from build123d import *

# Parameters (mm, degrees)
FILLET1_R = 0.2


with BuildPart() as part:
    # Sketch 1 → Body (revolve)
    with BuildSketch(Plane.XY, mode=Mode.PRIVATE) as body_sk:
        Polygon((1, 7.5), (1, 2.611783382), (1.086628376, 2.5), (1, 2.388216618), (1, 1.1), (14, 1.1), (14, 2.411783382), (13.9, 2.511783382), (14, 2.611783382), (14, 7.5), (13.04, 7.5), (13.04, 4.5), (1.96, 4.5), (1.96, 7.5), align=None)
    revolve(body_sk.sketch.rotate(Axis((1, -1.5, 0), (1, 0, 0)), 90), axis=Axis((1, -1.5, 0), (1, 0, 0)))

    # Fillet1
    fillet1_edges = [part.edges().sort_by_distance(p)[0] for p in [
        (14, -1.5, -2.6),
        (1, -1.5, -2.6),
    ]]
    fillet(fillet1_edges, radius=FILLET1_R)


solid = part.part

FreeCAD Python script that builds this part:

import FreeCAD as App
import Part
import Sketcher
from FreeCAD import Vector
Q = App.Units.Quantity


def edges_at(feature, points):
    """Names of the edges that pass closest to the given points."""
    edges = feature.Shape.Edges
    near = lambda p: min(range(len(edges)), key=lambda i: edges[i].distToShape(Part.Vertex(*p))[0])
    return sorted({f"Edge{near(p) + 1}" for p in points})


def add_polygon(sketch, points):
    """Adds a closed chain of lines whose ends are joined by coincident constraints."""
    first, n = sketch.GeometryCount, len(points)
    for a, b in zip(points, points[1:] + points[:1]):
        sketch.addGeometry(Part.LineSegment(App.Vector(*a, 0), App.Vector(*b, 0)), False)
    for i in range(n):
        sketch.addConstraint(Sketcher.Constraint("Coincident", first + i, 2, first + (i + 1) % n, 1))

doc = App.newDocument("Part")
body = doc.addObject("PartDesign::Body", "Body")

# Sketch on XY plane
sketch1 = body.newObject("Sketcher::SketchObject", "Sketch")
sketch1.AttachmentSupport = (doc.getObject("XY_Plane"), [""])
sketch1.MapMode = "FlatFace"
add_polygon(sketch1, [(1, 7.5), (1, 2.61), (1.09, 2.5), (1, 2.39), (1, 1.1), (14, 1.1), (14, 2.41), (13.9, 2.51), (14, 2.61), (14, 7.5), (13.04, 7.5), (13.04, 4.5), (1.96, 4.5), (1.96, 7.5)])  # lines 0-13
sketch1.addGeometry(Part.LineSegment(Vector(1, -1.5, 0), Vector(14, -1.5, 0)), True)  # axis
sketch1.addConstraint([
    Sketcher.Constraint("Vertical", 0),
    Sketcher.Constraint("Vertical", 3),
    Sketcher.Constraint("Horizontal", 4),
    Sketcher.Constraint("Vertical", 5),
    Sketcher.Constraint("Vertical", 8),
    Sketcher.Constraint("Horizontal", 9),
    Sketcher.Constraint("Vertical", 10),
    Sketcher.Constraint("Horizontal", 11),
    Sketcher.Constraint("Vertical", 12),
    Sketcher.Constraint("Horizontal", 13),
    Sketcher.Constraint("Horizontal", 14),
    Sketcher.Constraint("Perpendicular", 6, 7),
    Sketcher.Constraint("Horizontal", 0, 2, 7, 2),
    Sketcher.Constraint("Horizontal", 9, 2, 12, 2),
    Sketcher.Constraint("Vertical", 0, 2, 2, 2),
    Sketcher.Constraint("Vertical", 5, 2, 7, 2),
    Sketcher.Constraint("Vertical", 13, 2, 14, 1),
    Sketcher.Constraint("Vertical", 8, 2, 14, 2),
    Sketcher.Constraint("Equal", 9, 13),
    Sketcher.Constraint("Equal", 1, 2),
    Sketcher.Constraint("Equal", 2, 6),
    Sketcher.Constraint("Equal", 6, 7),
    Sketcher.Constraint("DistanceX", 4, 1, 4, 2, Q("13 mm")),
    Sketcher.Constraint("DistanceY", 10, 2, 10, 1, Q("3 mm")),
    Sketcher.Constraint("DistanceX", -1, 1, 0, 2, Q("1 mm")),
    Sketcher.Constraint("DistanceY", 1, 2, 8, 2, Q("5 mm")),
    Sketcher.Constraint("DistanceY", 14, 1, 1, 2, Q("4 mm")),
    Sketcher.Constraint("DistanceX", 9, 2, 9, 1, Q("0.96 mm")),
    Sketcher.Constraint("DistanceY", -1, 1, 1, 2, Q("2.5 mm")),
    Sketcher.Constraint("DistanceY", -1, 1, 3, 2, Q("1.1 mm")),
    Sketcher.Constraint("DistanceX", -1, 1, 6, 2, Q("13.9 mm")),
    Sketcher.Constraint("DistanceY", 0, 2, 0, 1, Q("4.888217 mm")),
])
revolution = body.newObject("PartDesign::Revolution", "Revolution")
revolution.Profile = sketch1
revolution.ReferenceAxis = (sketch1, ["Axis0"])
revolution.Angle = 360
doc.recompute()

fillet = body.newObject("PartDesign::Fillet", "Fillet")
fillet.Base = (revolution, edges_at(revolution, [(14, -1.5, -2.6), (1, -1.5, -2.6)]))
fillet.Radius = 0.2

doc.recompute()
